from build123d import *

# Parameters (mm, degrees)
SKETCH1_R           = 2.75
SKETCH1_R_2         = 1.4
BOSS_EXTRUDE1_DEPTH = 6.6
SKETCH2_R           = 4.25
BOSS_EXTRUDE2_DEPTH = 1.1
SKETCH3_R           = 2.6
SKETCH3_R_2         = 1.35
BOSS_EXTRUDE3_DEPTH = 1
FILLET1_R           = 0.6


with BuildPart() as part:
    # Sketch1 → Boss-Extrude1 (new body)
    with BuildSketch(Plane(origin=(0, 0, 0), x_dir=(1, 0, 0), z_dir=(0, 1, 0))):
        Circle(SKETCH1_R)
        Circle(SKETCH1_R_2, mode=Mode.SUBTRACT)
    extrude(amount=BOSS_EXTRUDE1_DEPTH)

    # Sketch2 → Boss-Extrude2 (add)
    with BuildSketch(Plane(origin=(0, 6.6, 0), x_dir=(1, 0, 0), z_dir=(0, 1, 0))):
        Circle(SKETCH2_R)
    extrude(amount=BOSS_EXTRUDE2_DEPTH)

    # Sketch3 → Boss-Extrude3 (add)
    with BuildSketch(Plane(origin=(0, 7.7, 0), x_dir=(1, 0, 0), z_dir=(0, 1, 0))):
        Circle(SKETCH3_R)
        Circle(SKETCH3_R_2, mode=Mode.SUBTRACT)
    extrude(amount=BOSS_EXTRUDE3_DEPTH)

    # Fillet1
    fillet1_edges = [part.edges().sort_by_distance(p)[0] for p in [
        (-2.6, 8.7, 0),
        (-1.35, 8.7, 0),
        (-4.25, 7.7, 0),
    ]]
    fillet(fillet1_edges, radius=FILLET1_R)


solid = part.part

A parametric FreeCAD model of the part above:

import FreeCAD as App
import Part
import Sketcher

V = App.Vector


def edges_at(feature, points):
    """Names of the edges that pass closest to the given points."""
    edges = feature.Shape.Edges
    near = lambda p: min(range(len(edges)), key=lambda i: edges[i].distToShape(Part.Vertex(*p))[0])
    return sorted({f"Edge{near(p) + 1}" for p in points})

doc = App.newDocument("Part")
body = doc.addObject("PartDesign::Body", "Body")

# Sketch on XZ plane
sketch1 = body.newObject("Sketcher::SketchObject", "Sketch")
sketch1.AttachmentSupport = (doc.getObject("XZ_Plane"), [""])
sketch1.MapMode = "FlatFace"
sketch1.addGeometry(Part.Circle(V(0, 0, 0), V(0, 0, 1), 2.75), False)
sketch1.addGeometry(Part.Circle(V(0, 0, 0), V(0, 0, 1), 1.4), False)
sketch1.addConstraint(Sketcher.Constraint("Coincident", 0, 3, -1, 1))
sketch1.addConstraint(Sketcher.Constraint("Coincident", 1, 3, -1, 1))
sketch1.addConstraint(Sketcher.Constraint("Diameter", 0, 5.5))
sketch1.addConstraint(Sketcher.Constraint("Diameter", 1, 2.8))
pad1 = body.newObject("PartDesign::Pad", "Pad")
pad1.Profile = sketch1
pad1.Length = 6.6
pad1.Reversed = True

# Sketch on XZ plane
sketch2 = body.newObject("Sketcher::SketchObject", "Sketch001")
sketch2.AttachmentSupport = (doc.getObject("XZ_Plane"), [""])
sketch2.MapMode = "FlatFace"
sketch2.AttachmentOffset = App.Placement(V(0, 0, -6.6), App.Rotation())
sketch2.addGeometry(Part.Circle(V(0, 0, 0), V(0, 0, 1), 4.25), False)
sketch2.addConstraint(Sketcher.Constraint("Coincident", 0, 3, -1, 1))
sketch2.addConstraint(Sketcher.Constraint("Diameter", 0, 8.5))
pad2 = body.newObject("PartDesign::Pad", "Pad001")
pad2.Profile = sketch2
pad2.Length = 1.1
pad2.Reversed = True

# Sketch on XZ plane
sketch3 = body.newObject("Sketcher::SketchObject", "Sketch002")
sketch3.AttachmentSupport = (doc.getObject("XZ_Plane"), [""])
sketch3.MapMode = "FlatFace"
sketch3.AttachmentOffset = App.Placement(V(0, 0, -7.7), App.Rotation())
sketch3.addGeometry(Part.Circle(V(0, 0, 0), V(0, 0, 1), 2.6), False)
sketch3.addGeometry(Part.Circle(V(0, 0, 0), V(0, 0, 1), 1.35), False)
sketch3.addConstraint(Sketcher.Constraint("Coincident", 0, 3, -1, 1))
sketch3.addConstraint(Sketcher.Constraint("Coincident", 1, 3, -1, 1))
sketch3.addConstraint(Sketcher.Constraint("Diameter", 0, 5.2))
sketch3.addConstraint(Sketcher.Constraint("Diameter", 1, 2.7))
pad3 = body.newObject("PartDesign::Pad", "Pad002")
pad3.Profile = sketch3
pad3.Length = 1
pad3.Reversed = True
doc.recompute()

fillet = body.newObject("PartDesign::Fillet", "Fillet")
fillet.Base = (pad3, edges_at(pad3, [(-2.6, 8.7, 0), (-1.35, 8.7, 0), (-4.25, 7.7, 0)]))
fillet.Radius = 0.6

doc.recompute()
